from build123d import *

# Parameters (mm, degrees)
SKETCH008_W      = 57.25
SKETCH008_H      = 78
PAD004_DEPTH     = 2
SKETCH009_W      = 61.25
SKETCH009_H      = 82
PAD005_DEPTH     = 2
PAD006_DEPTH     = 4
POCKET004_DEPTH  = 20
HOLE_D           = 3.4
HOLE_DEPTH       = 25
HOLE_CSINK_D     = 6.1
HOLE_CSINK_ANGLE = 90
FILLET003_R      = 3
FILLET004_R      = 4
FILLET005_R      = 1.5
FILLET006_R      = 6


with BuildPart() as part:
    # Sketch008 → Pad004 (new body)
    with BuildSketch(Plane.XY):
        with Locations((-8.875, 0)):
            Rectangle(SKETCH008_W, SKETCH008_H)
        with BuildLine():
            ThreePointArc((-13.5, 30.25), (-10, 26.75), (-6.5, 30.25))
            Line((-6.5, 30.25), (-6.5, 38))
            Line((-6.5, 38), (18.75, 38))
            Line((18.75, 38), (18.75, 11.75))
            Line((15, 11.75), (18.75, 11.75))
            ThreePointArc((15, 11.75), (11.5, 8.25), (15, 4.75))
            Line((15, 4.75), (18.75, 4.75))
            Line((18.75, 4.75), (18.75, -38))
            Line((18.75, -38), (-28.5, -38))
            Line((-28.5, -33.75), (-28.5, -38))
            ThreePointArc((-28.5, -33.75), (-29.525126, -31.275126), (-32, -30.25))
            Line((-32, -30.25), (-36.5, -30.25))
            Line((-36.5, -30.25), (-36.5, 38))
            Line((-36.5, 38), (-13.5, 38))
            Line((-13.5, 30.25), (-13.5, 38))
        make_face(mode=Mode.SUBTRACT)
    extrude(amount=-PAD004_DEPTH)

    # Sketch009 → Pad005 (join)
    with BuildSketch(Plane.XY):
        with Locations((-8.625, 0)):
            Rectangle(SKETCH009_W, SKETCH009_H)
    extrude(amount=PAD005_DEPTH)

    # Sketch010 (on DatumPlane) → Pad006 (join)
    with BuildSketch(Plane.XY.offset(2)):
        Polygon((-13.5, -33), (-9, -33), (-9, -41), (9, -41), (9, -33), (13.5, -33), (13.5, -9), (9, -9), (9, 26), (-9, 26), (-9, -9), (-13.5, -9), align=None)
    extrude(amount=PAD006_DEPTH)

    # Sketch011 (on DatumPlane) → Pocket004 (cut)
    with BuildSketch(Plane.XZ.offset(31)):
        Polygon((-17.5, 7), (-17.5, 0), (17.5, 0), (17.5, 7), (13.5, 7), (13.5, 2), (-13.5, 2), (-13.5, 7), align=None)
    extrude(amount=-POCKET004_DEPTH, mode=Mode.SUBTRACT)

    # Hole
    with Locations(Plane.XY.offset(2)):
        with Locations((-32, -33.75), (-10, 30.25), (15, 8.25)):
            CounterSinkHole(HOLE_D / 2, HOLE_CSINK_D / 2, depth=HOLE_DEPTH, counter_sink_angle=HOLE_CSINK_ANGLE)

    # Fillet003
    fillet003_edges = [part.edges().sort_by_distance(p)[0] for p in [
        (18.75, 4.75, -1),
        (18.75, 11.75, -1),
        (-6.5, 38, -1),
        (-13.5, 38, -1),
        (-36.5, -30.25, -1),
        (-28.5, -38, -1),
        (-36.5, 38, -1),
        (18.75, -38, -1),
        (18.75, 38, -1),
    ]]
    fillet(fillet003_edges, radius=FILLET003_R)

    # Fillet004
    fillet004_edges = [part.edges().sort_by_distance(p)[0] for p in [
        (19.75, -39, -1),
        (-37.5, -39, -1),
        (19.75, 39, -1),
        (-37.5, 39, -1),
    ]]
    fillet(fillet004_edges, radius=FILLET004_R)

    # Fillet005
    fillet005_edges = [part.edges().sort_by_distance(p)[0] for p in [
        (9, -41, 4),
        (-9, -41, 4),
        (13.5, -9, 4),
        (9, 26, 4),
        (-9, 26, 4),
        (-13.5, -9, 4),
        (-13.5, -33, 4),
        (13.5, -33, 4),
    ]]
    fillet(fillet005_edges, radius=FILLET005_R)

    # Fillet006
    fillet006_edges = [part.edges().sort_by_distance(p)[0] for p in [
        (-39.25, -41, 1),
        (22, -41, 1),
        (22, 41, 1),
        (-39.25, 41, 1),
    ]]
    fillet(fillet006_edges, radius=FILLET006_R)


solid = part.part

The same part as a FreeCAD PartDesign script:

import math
import FreeCAD as App
import Part
import Sketcher

V = App.Vector
Q = App.Units.Quantity


def edges_at(feature, points):
    """Names of the edges that pass closest to the given points."""
    edges = feature.Shape.Edges
    near = lambda p: min(range(len(edges)), key=lambda i: edges[i].distToShape(Part.Vertex(*p))[0])
    return sorted({f"Edge{near(p) + 1}" for p in points})

doc = App.newDocument("Part")
body = doc.addObject("PartDesign::Body", "Body")

sketch1 = doc.addObject("Sketcher::SketchObject", "Sketch")
body.addObject(sketch1)
sketch1.AttachmentSupport = (doc.XY_Plane, [""])
sketch1.MapMode = "FlatFace"
sketch1.addGeometry(Part.LineSegment(V(-37.5, 39, 0), V(-37.5, -39, 0)), False)
sketch1.addGeometry(Part.LineSegment(V(-37.5, -39, 0), V(19.8, -39, 0)), False)
sketch1.addGeometry(Part.LineSegment(V(19.8, -39, 0), V(19.8, 39, 0)), False)
sketch1.addGeometry(Part.LineSegment(V(19.8, 39, 0), V(-37.5, 39, 0)), False)
sketch1.addGeometry(Part.LineSegment(V(-13.5, 38, 0), V(-13.5, 30.2, 0)), False)
sketch1.addGeometry(Part.ArcOfCircle(Part.Circle(V(-10, 30.2, 0), V(0, 0, 1), 3.5), math.radians(180), math.radians(360)), False)
sketch1.addGeometry(Part.LineSegment(V(-6.5, 30.2, 0), V(-6.5, 38, 0)), False)
sketch1.addGeometry(Part.LineSegment(V(-6.5, 38, 0), V(18.8, 38, 0)), False)
sketch1.addGeometry(Part.LineSegment(V(18.8, 38, 0), V(18.8, 11.8, 0)), False)
sketch1.addGeometry(Part.LineSegment(V(18.8, 11.8, 0), V(15, 11.8, 0)), False)
sketch1.addGeometry(Part.ArcOfCircle(Part.Circle(V(15, 8.2, 0), V(0, 0, 1), 3.5), math.radians(90), math.radians(270)), False)
sketch1.addGeometry(Part.LineSegment(V(15, 4.8, 0), V(18.8, 4.8, 0)), False)
sketch1.addGeometry(Part.LineSegment(V(18.8, 4.8, 0), V(18.8, -38, 0)), False)
sketch1.addGeometry(Part.LineSegment(V(18.8, -38, 0), V(-28.5, -38, 0)), False)
sketch1.addGeometry(Part.LineSegment(V(-28.5, -38, 0), V(-28.5, -33.8, 0)), False)
sketch1.addGeometry(Part.ArcOfCircle(Part.Circle(V(-32, -33.7, 0), V(0, 0, 1), 3.5), math.radians(0), math.radians(90)), False)
sketch1.addGeometry(Part.LineSegment(V(-32, -30.2, 0), V(-36.5, -30.2, 0)), False)
sketch1.addGeometry(Part.LineSegment(V(-36.5, -30.2, 0), V(-36.5, 38, 0)), False)
sketch1.addGeometry(Part.LineSegment(V(-36.5, 38, 0), V(-13.5, 38, 0)), False)
sketch1.addConstraint(Sketcher.Constraint("Coincident", 0, 2, 1, 1))
sketch1.addConstraint(Sketcher.Constraint("Coincident", 1, 2, 2, 1))
sketch1.addConstraint(Sketcher.Constraint("Coincident", 2, 2, 3, 1))
sketch1.addConstraint(Sketcher.Constraint("Coincident", 3, 2, 0, 1))
sketch1.addConstraint(Sketcher.Constraint("Tangent", 4, 2, 5, 1))
sketch1.addConstraint(Sketcher.Constraint("Tangent", 5, 2, 6, 1))
sketch1.addConstraint(Sketcher.Constraint("Coincident", 6, 2, 7, 1))
sketch1.addConstraint(Sketcher.Constraint("Coincident", 7, 2, 8, 1))
sketch1.addConstraint(Sketcher.Constraint("Coincident", 8, 2, 9, 1))
sketch1.addConstraint(Sketcher.Constraint("Tangent", 9, 2, 10, 1))
sketch1.addConstraint(Sketcher.Constraint("Tangent", 10, 2, 11, 1))
sketch1.addConstraint(Sketcher.Constraint("Coincident", 11, 2, 12, 1))
sketch1.addConstraint(Sketcher.Constraint("Coincident", 12, 2, 13, 1))
sketch1.addConstraint(Sketcher.Constraint("Coincident", 13, 2, 14, 1))
sketch1.addConstraint(Sketcher.Constraint("Tangent", 14, 2, 15, 1))
sketch1.addConstraint(Sketcher.Constraint("Tangent", 15, 2, 16, 1))
sketch1.addConstraint(Sketcher.Constraint("Coincident", 16, 2, 17, 1))
sketch1.addConstraint(Sketcher.Constraint("Coincident", 17, 2, 18, 1))
sketch1.addConstraint(Sketcher.Constraint("Coincident", 18, 2, 4, 1))
sketch1.addConstraint(Sketcher.Constraint("Vertical", 0))
sketch1.addConstraint(Sketcher.Constraint("Horizontal", 1))
sketch1.addConstraint(Sketcher.Constraint("Vertical", 2))
sketch1.addConstraint(Sketcher.Constraint("Horizontal", 3))
sketch1.addConstraint(Sketcher.Constraint("Vertical", 4))
sketch1.addConstraint(Sketcher.Constraint("Vertical", 6))
sketch1.addConstraint(Sketcher.Constraint("Horizontal", 7))
sketch1.addConstraint(Sketcher.Constraint("Vertical", 8))
sketch1.addConstraint(Sketcher.Constraint("Horizontal", 9))
sketch1.addConstraint(Sketcher.Constraint("Horizontal", 11))
sketch1.addConstraint(Sketcher.Constraint("Vertical", 12))
sketch1.addConstraint(Sketcher.Constraint("Horizontal", 13))
sketch1.addConstraint(Sketcher.Constraint("Vertical", 14))
sketch1.addConstraint(Sketcher.Constraint("Horizontal", 16))
sketch1.addConstraint(Sketcher.Constraint("Vertical", 17))
sketch1.addConstraint(Sketcher.Constraint("Horizontal", 18))
sketch1.addConstraint(Sketcher.Constraint("Equal", 5, 10))
sketch1.addConstraint(Sketcher.Constraint("Equal", 10, 15))
sketch1.addConstraint(Sketcher.Constraint("Symmetric", 7, 2, 12, 2, -1))
sketch1.addConstraint(Sketcher.Constraint("Horizontal", 7, 2, 17, 2))
sketch1.addConstraint(Sketcher.Constraint("Radius", 5, Q("3.5 mm")))
sketch1.addConstraint(Sketcher.Constraint("DistanceX", 18, 1, 18, 2, Q("23 mm")))
sketch1.addConstraint(Sketcher.Constraint("DistanceY", 0, 2, 0, 1, Q("78 mm")))
sketch1.addConstraint(Sketcher.Constraint("DistanceX", 16, 2, 16, 1, Q("4.5 mm")))
sketch1.addConstraint(Sketcher.Constraint("DistanceX", 5, 3, -1, 1, Q("10 mm")))
sketch1.addConstraint(Sketcher.Constraint("DistanceX", -1, 1, 10, 3, Q("15 mm")))
sketch1.addConstraint(Sketcher.Constraint("DistanceY", 0, 2, -1, 1, Q("39 mm")))
sketch1.addConstraint(Sketcher.Constraint("DistanceY", -1, 1, 6, 2, Q("38 mm")))
sketch1.addConstraint(Sketcher.Constraint("DistanceY", 10, 3, 5, 3, Q("22 mm")))
sketch1.addConstraint(Sketcher.Constraint("DistanceY", 15, 3, 10, 3, Q("41.999999 mm")))
sketch1.addConstraint(Sketcher.Constraint("DistanceX", 3, 2, 4, 2, Q("24 mm")))
sketch1.addConstraint(Sketcher.Constraint("DistanceX", 7, 2, 2, 2, Q("1 mm")))
sketch1.addConstraint(Sketcher.Constraint("DistanceX", 1, 1, 1, 2, Q("57.25 mm")))
sketch1.addConstraint(Sketcher.Constraint("DistanceY", 4, 2, 4, 1, Q("7.75 mm")))
pad1 = doc.addObject("PartDesign::Pad", "Pad")
body.addObject(pad1)
pad1.Profile = sketch1
pad1.Length = 2
pad1.Reversed = True

sketch2 = doc.addObject("Sketcher::SketchObject", "Sketch001")
body.addObject(sketch2)
sketch2.AttachmentSupport = (doc.XY_Plane, [""])
sketch2.MapMode = "FlatFace"
sketch2.addGeometry(Part.LineSegment(V(-39, 41, 0), V(-39, -41, 0)), False)
sketch2.addGeometry(Part.LineSegment(V(-39, -41, 0), V(22, -41, 0)), False)
sketch2.addGeometry(Part.LineSegment(V(22, -41, 0), V(22, 41, 0)), False)
sketch2.addGeometry(Part.LineSegment(V(22, 41, 0), V(-39, 41, 0)), False)
sketch2.addConstraint(Sketcher.Constraint("Coincident", 0, 2, 1, 1))
sketch2.addConstraint(Sketcher.Constraint("Coincident", 1, 2, 2, 1))
sketch2.addConstraint(Sketcher.Constraint("Coincident", 2, 2, 3, 1))
sketch2.addConstraint(Sketcher.Constraint("Coincident", 3, 2, 0, 1))
sketch2.addConstraint(Sketcher.Constraint("Vertical", 0))
sketch2.addConstraint(Sketcher.Constraint("Horizontal", 1))
sketch2.addConstraint(Sketcher.Constraint("Vertical", 2))
sketch2.addConstraint(Sketcher.Constraint("Horizontal", 3))
sketch2.addConstraint(Sketcher.Constraint("DistanceY", 0, 2, 0, 1, Q("82 mm")))
sketch2.addConstraint(Sketcher.Constraint("DistanceY", 0, 2, -1, 1, Q("41 mm")))
sketch2.addConstraint(Sketcher.Constraint("DistanceX", -1, 1, 1, 2, Q("22 mm")))
sketch2.addConstraint(Sketcher.Constraint("DistanceX", 1, 1, 1, 2, Q("61.25 mm")))
pad2 = doc.addObject("PartDesign::Pad", "Pad001")
body.addObject(pad2)
pad2.Profile = sketch2
pad2.Length = 2

sketch3 = doc.addObject("Sketcher::SketchObject", "Sketch002")
body.addObject(sketch3)
sketch3.AttachmentSupport = (doc.XY_Plane, [""])
sketch3.MapMode = "FlatFace"
sketch3.AttachmentOffset = App.Placement(V(0, 0, 2), App.Rotation())
sketch3.addGeometry(Part.LineSegment(V(-13.5, -33, 0), V(-9, -33, 0)), False)
sketch3.addGeometry(Part.LineSegment(V(-9, -33, 0), V(-9, -41, 0)), False)
sketch3.addGeometry(Part.LineSegment(V(-9, -41, 0), V(9, -41, 0)), False)
sketch3.addGeometry(Part.LineSegment(V(9, -41, 0), V(9, -33, 0)), False)
sketch3.addGeometry(Part.LineSegment(V(9, -33, 0), V(13.5, -33, 0)), False)
sketch3.addGeometry(Part.LineSegment(V(13.5, -33, 0), V(13.5, -9, 0)), False)
sketch3.addGeometry(Part.LineSegment(V(13.5, -9, 0), V(9, -9, 0)), False)
sketch3.addGeometry(Part.LineSegment(V(9, -9, 0), V(9, 26, 0)), False)
sketch3.addGeometry(Part.LineSegment(V(9, 26, 0), V(-9, 26, 0)), False)
sketch3.addGeometry(Part.LineSegment(V(-9, 26, 0), V(-9, -9, 0)), False)
sketch3.addGeometry(Part.LineSegment(V(-9, -9, 0), V(-13.5, -9, 0)), False)
sketch3.addGeometry(Part.LineSegment(V(-13.5, -9, 0), V(-13.5, -33, 0)), False)
sketch3.addConstraint(Sketcher.Constraint("Coincident", 0, 2, 1, 1))
sketch3.addConstraint(Sketcher.Constraint("Coincident", 1, 2, 2, 1))
sketch3.addConstraint(Sketcher.Constraint("Coincident", 2, 2, 3, 1))
sketch3.addConstraint(Sketcher.Constraint("Coincident", 3, 2, 4, 1))
sketch3.addConstraint(Sketcher.Constraint("Coincident", 4, 2, 5, 1))
sketch3.addConstraint(Sketcher.Constraint("Coincident", 5, 2, 6, 1))
sketch3.addConstraint(Sketcher.Constraint("Coincident", 6, 2, 7, 1))
sketch3.addConstraint(Sketcher.Constraint("Coincident", 7, 2, 8, 1))
sketch3.addConstraint(Sketcher.Constraint("Coincident", 8, 2, 9, 1))
sketch3.addConstraint(Sketcher.Constraint("Coincident", 9, 2, 10, 1))
sketch3.addConstraint(Sketcher.Constraint("Coincident", 10, 2, 11, 1))
sketch3.addConstraint(Sketcher.Constraint("Coincident", 11, 2, 0, 1))
sketch3.addConstraint(Sketcher.Constraint("Horizontal", 0))
sketch3.addConstraint(Sketcher.Constraint("Vertical", 1))
sketch3.addConstraint(Sketcher.Constraint("Horizontal", 2))
sketch3.addConstraint(Sketcher.Constraint("Vertical", 3))
sketch3.addConstraint(Sketcher.Constraint("Horizontal", 4))
sketch3.addConstraint(Sketcher.Constraint("Vertical", 5))
sketch3.addConstraint(Sketcher.Constraint("Horizontal", 6))
sketch3.addConstraint(Sketcher.Constraint("Vertical", 7))
sketch3.addConstraint(Sketcher.Constraint("Horizontal", 8))
sketch3.addConstraint(Sketcher.Constraint("Vertical", 9))
sketch3.addConstraint(Sketcher.Constraint("Horizontal", 10))
sketch3.addConstraint(Sketcher.Constraint("Vertical", 11))
sketch3.addConstraint(Sketcher.Constraint("Symmetric", 0, 2, 3, 2, -2))
sketch3.addConstraint(Sketcher.Constraint("Symmetric", 6, 2, 9, 2, -2))
sketch3.addConstraint(Sketcher.Constraint("Vertical", 3, 2, 6, 2))
sketch3.addConstraint(Sketcher.Constraint("Equal", 0, 4))
sketch3.addConstraint(Sketcher.Constraint("DistanceX", 2, 1, 2, 2, Q("18 mm")))
sketch3.addConstraint(Sketcher.Constraint("DistanceY", 1, 2, 1, 1, Q("8 mm")))
sketch3.addConstraint(Sketcher.Constraint("DistanceY", 5, 1, 5, 2, Q("24 mm")))
sketch3.addConstraint(Sketcher.Constraint("DistanceY", 7, 1, 7, 2, Q("35 mm")))
sketch3.addConstraint(Sketcher.Constraint("DistanceX", 0, 1, 0, 2, Q("4.5 mm")))
sketch3.addConstraint(Sketcher.Constraint("DistanceY", 0, 2, -1, 1, Q("33 mm")))
pad3 = doc.addObject("PartDesign::Pad", "Pad002")
body.addObject(pad3)
pad3.Profile = sketch3
pad3.Length = 4

sketch4 = doc.addObject("Sketcher::SketchObject", "Sketch003")
body.addObject(sketch4)
sketch4.AttachmentSupport = (doc.XZ_Plane, [""])
sketch4.MapMode = "FlatFace"
sketch4.AttachmentOffset = App.Placement(V(0, 0, 31), App.Rotation())
sketch4.addGeometry(Part.LineSegment(V(-17.5, 7, 0), V(-17.5, 0, 0)), False)
sketch4.addGeometry(Part.LineSegment(V(-17.5, 0, 0), V(17.5, 0, 0)), False)
sketch4.addGeometry(Part.LineSegment(V(17.5, 0, 0), V(17.5, 7, 0)), False)
sketch4.addGeometry(Part.LineSegment(V(17.5, 7, 0), V(13.5, 7, 0)), False)
sketch4.addGeometry(Part.LineSegment(V(13.5, 7, 0), V(13.5, 2, 0)), False)
sketch4.addGeometry(Part.LineSegment(V(13.5, 2, 0), V(-13.5, 2, 0)), False)
sketch4.addGeometry(Part.LineSegment(V(-13.5, 2, 0), V(-13.5, 7, 0)), False)
sketch4.addGeometry(Part.LineSegment(V(-13.5, 7, 0), V(-17.5, 7, 0)), False)
sketch4.addConstraint(Sketcher.Constraint("Coincident", 0, 2, 1, 1))
sketch4.addConstraint(Sketcher.Constraint("Coincident", 1, 2, 2, 1))
sketch4.addConstraint(Sketcher.Constraint("Coincident", 2, 2, 3, 1))
sketch4.addConstraint(Sketcher.Constraint("Coincident", 3, 2, 4, 1))
sketch4.addConstraint(Sketcher.Constraint("Coincident", 4, 2, 5, 1))
sketch4.addConstraint(Sketcher.Constraint("Coincident", 5, 2, 6, 1))
sketch4.addConstraint(Sketcher.Constraint("Coincident", 6, 2, 7, 1))
sketch4.addConstraint(Sketcher.Constraint("Coincident", 7, 2, 0, 1))
sketch4.addConstraint(Sketcher.Constraint("Vertical", 0))
sketch4.addConstraint(Sketcher.Constraint("Horizontal", 1))
sketch4.addConstraint(Sketcher.Constraint("Vertical", 2))
sketch4.addConstraint(Sketcher.Constraint("Horizontal", 3))
sketch4.addConstraint(Sketcher.Constraint("Vertical", 4))
sketch4.addConstraint(Sketcher.Constraint("Horizontal", 5))
sketch4.addConstraint(Sketcher.Constraint("Vertical", 6))
sketch4.addConstraint(Sketcher.Constraint("Horizontal", 7))
sketch4.addConstraint(Sketcher.Constraint("Symmetric", 0, 2, 1, 2, -1, 1))
sketch4.addConstraint(Sketcher.Constraint("Symmetric", 3, 2, 6, 2, -2))
sketch4.addConstraint(Sketcher.Constraint("DistanceX", 1, 1, 1, 2, Q("35 mm")))
sketch4.addConstraint(Sketcher.Constraint("DistanceX", 3, 2, 3, 1, Q("4 mm")))
sketch4.addConstraint(Sketcher.Constraint("DistanceY", 0, 2, 0, 1, Q("7 mm")))
sketch4.addConstraint(Sketcher.Constraint("DistanceY", 4, 2, 4, 1, Q("5 mm")))
pocket1 = doc.addObject("PartDesign::Pocket", "Pocket")
body.addObject(pocket1)
pocket1.Profile = sketch4
pocket1.Length = 20

sketch5 = doc.addObject("Sketcher::SketchObject", "Sketch004")
body.addObject(sketch5)
sketch5.AttachmentSupport = (doc.XY_Plane, [""])
sketch5.MapMode = "FlatFace"
sketch5.AttachmentOffset = App.Placement(V(0, 0, 2), App.Rotation())
sketch5.addGeometry(Part.Circle(V(-32, -33.8, 0), V(0, 0, 1), 1.7), False)
sketch5.addGeometry(Part.Circle(V(-10, 30.2, 0), V(0, 0, 1), 1.7), False)
sketch5.addGeometry(Part.Circle(V(15, 8.2, 0), V(0, 0, 1), 1.7), False)
sketch5.addConstraint(Sketcher.Constraint("Equal", 0, 1))
sketch5.addConstraint(Sketcher.Constraint("Equal", 1, 2))
sketch5.addConstraint(Sketcher.Constraint("Diameter", 0, Q("3.4 mm")))
sketch5.addConstraint(Sketcher.Constraint("DistanceX", 0, 3, -1, 1, Q("32 mm")))
sketch5.addConstraint(Sketcher.Constraint("DistanceX", 1, 3, -1, 1, Q("10 mm")))
sketch5.addConstraint(Sketcher.Constraint("DistanceX", -1, 1, 2, 3, Q("15 mm")))
sketch5.addConstraint(Sketcher.Constraint("DistanceY", 0, 3, 1, 3, Q("64 mm")))
sketch5.addConstraint(Sketcher.Constraint("DistanceY", 2, 3, 1, 3, Q("22 mm")))
sketch5.addConstraint(Sketcher.Constraint("DistanceY", 0, 3, -1, 1, Q("33.75 mm")))
doc.recompute()
hole = doc.addObject("PartDesign::Hole", "Hole")
body.addObject(hole)
hole.Profile = sketch5
hole.ThreadType = "None"
hole.Diameter = 3.4
hole.DepthType = "Dimension"
hole.Depth = 25
hole.DrillPoint = "Flat"
hole.HoleCutType = "Countersink"
hole.HoleCutDiameter = 6.1
hole.HoleCutCountersinkAngle = 90
doc.recompute()

fillet = doc.addObject("PartDesign::Fillet", "Fillet")
body.addObject(fillet)
fillet.Base = (hole, edges_at(hole, [
    (18.75, 4.75, -1),
    (18.75, 11.75, -1),
    (-6.5, 38, -1),
    (-13.5, 38, -1),
    (-36.5, -30.25, -1),
    (-28.5, -38, -1),
    (-36.5, 38, -1),
    (18.75, -38, -1),
    (18.75, 38, -1),
]))
fillet.Radius = 3
doc.recompute()

fillet2 = doc.addObject("PartDesign::Fillet", "Fillet001")
body.addObject(fillet2)
fillet2.Base = (fillet, edges_at(fillet, [
    (19.75, -39, -1),
    (-37.5, -39, -1),
    (19.75, 39, -1),
    (-37.5, 39, -1),
]))
fillet2.Radius = 4
doc.recompute()

fillet3 = doc.addObject("PartDesign::Fillet", "Fillet002")
body.addObject(fillet3)
fillet3.Base = (fillet2, edges_at(fillet2, [
    (9, -41, 4),
    (-9, -41, 4),
    (13.5, -9, 4),
    (9, 26, 4),
    (-9, 26, 4),
    (-13.5, -9, 4),
    (-13.5, -33, 4),
    (13.5, -33, 4),
]))
fillet3.Radius = 1.5
doc.recompute()

fillet4 = doc.addObject("PartDesign::Fillet", "Fillet003")
body.addObject(fillet4)
fillet4.Base = (fillet3, edges_at(fillet3, [
    (-39.25, -41, 1),
    (22, -41, 1),
    (22, 41, 1),
    (-39.25, 41, 1),
]))
fillet4.Radius = 6

doc.recompute()
